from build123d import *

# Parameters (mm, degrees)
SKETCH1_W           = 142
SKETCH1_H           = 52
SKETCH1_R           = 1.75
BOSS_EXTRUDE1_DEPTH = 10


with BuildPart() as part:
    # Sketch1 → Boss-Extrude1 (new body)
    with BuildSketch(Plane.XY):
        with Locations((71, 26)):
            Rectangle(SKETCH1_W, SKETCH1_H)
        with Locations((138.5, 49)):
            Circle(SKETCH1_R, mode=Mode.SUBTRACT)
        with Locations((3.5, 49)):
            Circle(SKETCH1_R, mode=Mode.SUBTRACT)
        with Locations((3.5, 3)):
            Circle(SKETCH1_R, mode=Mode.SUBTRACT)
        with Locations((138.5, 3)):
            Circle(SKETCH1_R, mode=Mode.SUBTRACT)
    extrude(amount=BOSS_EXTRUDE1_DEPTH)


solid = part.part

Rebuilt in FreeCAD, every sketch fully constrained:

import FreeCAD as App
import Part
import Sketcher

V = App.Vector

doc = App.newDocument("Part")
body = doc.addObject("PartDesign::Body", "Body")

# Sketch on XY plane
sketch1 = doc.addObject("Sketcher::SketchObject", "Sketch")
body.addObject(sketch1)
sketch1.AttachmentSupport = (doc.XY_Plane, [""])
sketch1.MapMode = "FlatFace"
sketch1.addGeometry([
    Part.LineSegment(V(0, 52, 0), V(0, 0, 0)),  # 0
    Part.LineSegment(V(0, 0, 0), V(142, 0, 0)),  # 1
    Part.LineSegment(V(142, 0, 0), V(142, 52, 0)),  # 2
    Part.LineSegment(V(142, 52, 0), V(0, 52, 0)),  # 3
    Part.Circle(V(3.5, 3, 0), V(0, 0, 1), 1.8),  # 4
    Part.Circle(V(138.5, 3, 0), V(0, 0, 1), 1.8),  # 5
    Part.Circle(V(3.5, 49, 0), V(0, 0, 1), 1.8),  # 6
    Part.Circle(V(138.5, 49, 0), V(0, 0, 1), 1.8),  # 7
], False)
sketch1.addConstraint([
    Sketcher.Constraint("Coincident", 0, 2, 1, 1),
    Sketcher.Constraint("Coincident", 1, 2, 2, 1),
    Sketcher.Constraint("Coincident", 2, 2, 3, 1),
    Sketcher.Constraint("Coincident", 3, 2, 0, 1),
    Sketcher.Constraint("Vertical", 0),
    Sketcher.Constraint("Horizontal", 1),
    Sketcher.Constraint("Vertical", 2),
    Sketcher.Constraint("Horizontal", 3),
    Sketcher.Constraint("Coincident", 0, 2, -1, 1),
    Sketcher.Constraint("Equal", 4, 5),
    Sketcher.Constraint("Equal", 5, 6),
    Sketcher.Constraint("Equal", 6, 7),
    Sketcher.Constraint("Horizontal", 4, 3, 5, 3),
    Sketcher.Constraint("Horizontal", 6, 3, 7, 3),
    Sketcher.Constraint("Vertical", 4, 3, 6, 3),
    Sketcher.Constraint("Vertical", 5, 3, 7, 3),
    Sketcher.Constraint("Diameter", 4, 3.5),
    Sketcher.Constraint("DistanceX", 1, 1, 1, 2, 142.0),
    Sketcher.Constraint("DistanceY", 0, 2, 0, 1, 52.0),
    Sketcher.Constraint("DistanceY", -1, 1, 4, 3, 3.0),
    Sketcher.Constraint("DistanceY", -1, 1, 6, 3, 49.0),
    Sketcher.Constraint("DistanceX", 4, 3, 5, 3, 135.0),
    Sketcher.Constraint("DistanceX", -1, 1, 4, 3, 3.5),
])
pad1 = doc.addObject("PartDesign::Pad", "Pad")
body.addObject(pad1)
pad1.Profile = sketch1
pad1.Length = 10

doc.recompute()
